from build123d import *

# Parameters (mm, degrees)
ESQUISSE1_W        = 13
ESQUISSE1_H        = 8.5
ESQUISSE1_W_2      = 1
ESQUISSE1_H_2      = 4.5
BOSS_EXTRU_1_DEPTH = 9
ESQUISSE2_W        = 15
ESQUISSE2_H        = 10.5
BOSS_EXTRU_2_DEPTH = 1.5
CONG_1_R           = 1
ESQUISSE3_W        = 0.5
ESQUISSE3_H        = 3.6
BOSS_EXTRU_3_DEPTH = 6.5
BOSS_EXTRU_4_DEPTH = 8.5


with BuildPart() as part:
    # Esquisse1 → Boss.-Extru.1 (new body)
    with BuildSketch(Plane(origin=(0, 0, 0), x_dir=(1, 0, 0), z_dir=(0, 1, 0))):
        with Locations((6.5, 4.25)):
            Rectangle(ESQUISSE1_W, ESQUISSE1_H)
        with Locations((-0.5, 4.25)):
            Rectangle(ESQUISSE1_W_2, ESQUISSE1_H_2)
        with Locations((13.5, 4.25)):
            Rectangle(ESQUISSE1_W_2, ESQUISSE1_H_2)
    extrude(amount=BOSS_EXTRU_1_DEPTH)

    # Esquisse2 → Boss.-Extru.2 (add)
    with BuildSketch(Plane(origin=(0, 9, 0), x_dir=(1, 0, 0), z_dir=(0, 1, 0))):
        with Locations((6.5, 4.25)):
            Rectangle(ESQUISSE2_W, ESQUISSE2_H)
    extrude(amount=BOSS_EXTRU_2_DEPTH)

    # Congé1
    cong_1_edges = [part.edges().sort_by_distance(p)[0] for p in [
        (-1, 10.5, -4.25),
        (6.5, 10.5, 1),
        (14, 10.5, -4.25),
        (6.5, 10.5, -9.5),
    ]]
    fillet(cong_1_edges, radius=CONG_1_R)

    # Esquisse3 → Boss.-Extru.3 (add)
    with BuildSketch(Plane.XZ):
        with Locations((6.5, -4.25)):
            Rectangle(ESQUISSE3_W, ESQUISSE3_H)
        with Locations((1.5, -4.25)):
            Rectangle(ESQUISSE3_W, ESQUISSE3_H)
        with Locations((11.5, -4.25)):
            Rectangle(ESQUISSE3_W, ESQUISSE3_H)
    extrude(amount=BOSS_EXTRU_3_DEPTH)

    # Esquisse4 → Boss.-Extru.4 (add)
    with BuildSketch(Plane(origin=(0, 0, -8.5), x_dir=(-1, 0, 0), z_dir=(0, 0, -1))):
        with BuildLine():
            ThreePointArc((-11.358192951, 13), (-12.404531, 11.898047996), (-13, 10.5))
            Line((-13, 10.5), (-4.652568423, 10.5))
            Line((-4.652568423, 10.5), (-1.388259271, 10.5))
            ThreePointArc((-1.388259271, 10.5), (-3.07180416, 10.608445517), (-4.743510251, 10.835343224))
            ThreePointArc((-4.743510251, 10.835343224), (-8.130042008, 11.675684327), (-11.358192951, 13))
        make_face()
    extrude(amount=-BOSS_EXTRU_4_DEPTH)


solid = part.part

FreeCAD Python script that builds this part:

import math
import FreeCAD as App
import Part
import Sketcher


def edges_at(feature, points):
    """Names of the edges that pass closest to the given points."""
    edges = feature.Shape.Edges
    near = lambda p: min(range(len(edges)), key=lambda i: edges[i].distToShape(Part.Vertex(*p))[0])
    return sorted({f"Edge{near(p) + 1}" for p in points})

doc = App.newDocument("Part")
body = doc.addObject("PartDesign::Body", "Body")

sketch1 = body.newObject("Sketcher::SketchObject", "Sketch")
sketch1.AttachmentSupport = (doc.getObject("XZ_Plane"), [""])
sketch1.MapMode = "FlatFace"
sketch1.addGeometry([
    Part.LineSegment(App.Vector(0, -2, 0), App.Vector(0, 0, 0)),
    Part.LineSegment(App.Vector(0, 0, 0), App.Vector(13, 0, 0)),
    Part.LineSegment(App.Vector(13, 0, 0), App.Vector(13, -2, 0)),
    Part.LineSegment(App.Vector(13, -2, 0), App.Vector(14, -2, 0)),
    Part.LineSegment(App.Vector(14, -2, 0), App.Vector(14, -6.5, 0)),
    Part.LineSegment(App.Vector(14, -6.5, 0), App.Vector(13, -6.5, 0)),
    Part.LineSegment(App.Vector(13, -6.5, 0), App.Vector(13, -8.5, 0)),
    Part.LineSegment(App.Vector(13, -8.5, 0), App.Vector(0, -8.5, 0)),
    Part.LineSegment(App.Vector(0, -8.5, 0), App.Vector(0, -6.5, 0)),
    Part.LineSegment(App.Vector(0, -6.5, 0), App.Vector(-1, -6.5, 0)),
    Part.LineSegment(App.Vector(-1, -6.5, 0), App.Vector(-1, -2, 0)),
    Part.LineSegment(App.Vector(-1, -2, 0), App.Vector(0, -2, 0)),
], False)
sketch1.addConstraint([
    Sketcher.Constraint("Coincident", 0, 2, 1, 1),
    Sketcher.Constraint("Coincident", 1, 2, 2, 1),
    Sketcher.Constraint("Coincident", 2, 2, 3, 1),
    Sketcher.Constraint("Coincident", 3, 2, 4, 1),
    Sketcher.Constraint("Coincident", 4, 2, 5, 1),
    Sketcher.Constraint("Coincident", 5, 2, 6, 1),
    Sketcher.Constraint("Coincident", 6, 2, 7, 1),
    Sketcher.Constraint("Coincident", 7, 2, 8, 1),
    Sketcher.Constraint("Coincident", 8, 2, 9, 1),
    Sketcher.Constraint("Coincident", 9, 2, 10, 1),
    Sketcher.Constraint("Coincident", 10, 2, 11, 1),
    Sketcher.Constraint("Coincident", 11, 2, 0, 1),
    Sketcher.Constraint("Vertical", 0),
    Sketcher.Constraint("Horizontal", 1),
    Sketcher.Constraint("Vertical", 2),
    Sketcher.Constraint("Horizontal", 3),
    Sketcher.Constraint("Vertical", 4),
    Sketcher.Constraint("Horizontal", 5),
    Sketcher.Constraint("Vertical", 6),
    Sketcher.Constraint("Horizontal", 7),
    Sketcher.Constraint("Vertical", 8),
    Sketcher.Constraint("Horizontal", 9),
    Sketcher.Constraint("Vertical", 10),
    Sketcher.Constraint("Horizontal", 11),
    Sketcher.Constraint("Coincident", 0, 2, -1, 1),
    Sketcher.Constraint("PointOnObject", 7, 2, -2),
    Sketcher.Constraint("Horizontal", 5, 2, 8, 2),
    Sketcher.Constraint("Horizontal", 3, 2, 10, 2),
    Sketcher.Constraint("Vertical", 2, 2, 5, 2),
    Sketcher.Constraint("Equal", 5, 9),
    Sketcher.Constraint("Equal", 2, 6),
    Sketcher.Constraint("DistanceX", 1, 1, 1, 2, 13.0),
    Sketcher.Constraint("DistanceX", 3, 1, 3, 2, 1.0),
    Sketcher.Constraint("DistanceY", 0, 1, 0, 2, 2.0),
    Sketcher.Constraint("DistanceY", 4, 2, 4, 1, 4.5),
])
pad1 = body.newObject("PartDesign::Pad", "Pad")
pad1.Profile = sketch1
pad1.Length = 9
pad1.Reversed = True

sketch2 = body.newObject("Sketcher::SketchObject", "Sketch001")
sketch2.AttachmentSupport = (doc.getObject("XZ_Plane"), [""])
sketch2.MapMode = "FlatFace"
sketch2.AttachmentOffset = App.Placement(App.Vector(0, 0, -9), App.Rotation())
sketch2.addGeometry([
    Part.LineSegment(App.Vector(-1, -10, 0), App.Vector(-1, 1, 0)),
    Part.LineSegment(App.Vector(-1, 1, 0), App.Vector(14, 1, 0)),
    Part.LineSegment(App.Vector(14, 1, 0), App.Vector(14, -10, 0)),
    Part.LineSegment(App.Vector(14, -10, 0), App.Vector(-1, -10, 0)),
], False)
sketch2.addConstraint([
    Sketcher.Constraint("Coincident", 0, 2, 1, 1),
    Sketcher.Constraint("Coincident", 1, 2, 2, 1),
    Sketcher.Constraint("Coincident", 2, 2, 3, 1),
    Sketcher.Constraint("Coincident", 3, 2, 0, 1),
    Sketcher.Constraint("Vertical", 0),
    Sketcher.Constraint("Horizontal", 1),
    Sketcher.Constraint("Vertical", 2),
    Sketcher.Constraint("Horizontal", 3),
    Sketcher.Constraint("DistanceX", 1, 1, 1, 2, 15.0),
    Sketcher.Constraint("DistanceY", 0, 1, 0, 2, 10.5),
    Sketcher.Constraint("DistanceX", 0, 2, -1, 1, 1.0),
    Sketcher.Constraint("DistanceY", -1, 1, 0, 2, 1.0),
])
pad2 = body.newObject("PartDesign::Pad", "Pad001")
pad2.Profile = sketch2
pad2.Length = 1.5
pad2.Reversed = True
doc.recompute()

fillet = body.newObject("PartDesign::Fillet", "Fillet")
fillet.Base = (pad2, edges_at(pad2, [
    (-1, 10.5, -4.25),
    (6.5, 10.5, 1),
    (14, 10.5, -4.25),
    (6.5, 10.5, -9.5),
]))
fillet.Radius = 1

sketch3 = body.newObject("Sketcher::SketchObject", "Sketch002")
sketch3.AttachmentSupport = (doc.getObject("XZ_Plane"), [""])
sketch3.MapMode = "FlatFace"
sketch3.addGeometry([
    Part.LineSegment(App.Vector(6.2, -2.5, 0), App.Vector(6.2, -6, 0)),
    Part.LineSegment(App.Vector(6.2, -6, 0), App.Vector(6.8, -6, 0)),
    Part.LineSegment(App.Vector(6.8, -6, 0), App.Vector(6.8, -2.5, 0)),
    Part.LineSegment(App.Vector(6.8, -2.5, 0), App.Vector(6.2, -2.5, 0)),
    Part.LineSegment(App.Vector(1.2, -2.5, 0), App.Vector(1.2, -6, 0)),
    Part.LineSegment(App.Vector(1.2, -6, 0), App.Vector(1.8, -6, 0)),
    Part.LineSegment(App.Vector(1.8, -6, 0), App.Vector(1.8, -2.5, 0)),
    Part.LineSegment(App.Vector(1.8, -2.5, 0), App.Vector(1.2, -2.5, 0)),
    Part.LineSegment(App.Vector(11.2, -2.5, 0), App.Vector(11.2, -6, 0)),
    Part.LineSegment(App.Vector(11.2, -6, 0), App.Vector(11.8, -6, 0)),
    Part.LineSegment(App.Vector(11.8, -6, 0), App.Vector(11.8, -2.5, 0)),
    Part.LineSegment(App.Vector(11.8, -2.5, 0), App.Vector(11.2, -2.5, 0)),
], False)
sketch3.addConstraint([
    Sketcher.Constraint("Coincident", 0, 2, 1, 1),
    Sketcher.Constraint("Coincident", 1, 2, 2, 1),
    Sketcher.Constraint("Coincident", 2, 2, 3, 1),
    Sketcher.Constraint("Coincident", 3, 2, 0, 1),
    Sketcher.Constraint("Coincident", 4, 2, 5, 1),
    Sketcher.Constraint("Coincident", 5, 2, 6, 1),
    Sketcher.Constraint("Coincident", 6, 2, 7, 1),
    Sketcher.Constraint("Coincident", 7, 2, 4, 1),
    Sketcher.Constraint("Coincident", 8, 2, 9, 1),
    Sketcher.Constraint("Coincident", 9, 2, 10, 1),
    Sketcher.Constraint("Coincident", 10, 2, 11, 1),
    Sketcher.Constraint("Coincident", 11, 2, 8, 1),
    Sketcher.Constraint("Vertical", 0),
    Sketcher.Constraint("Horizontal", 1),
    Sketcher.Constraint("Vertical", 2),
    Sketcher.Constraint("Horizontal", 3),
    Sketcher.Constraint("Vertical", 4),
    Sketcher.Constraint("Horizontal", 5),
    Sketcher.Constraint("Vertical", 6),
    Sketcher.Constraint("Horizontal", 7),
    Sketcher.Constraint("Vertical", 8),
    Sketcher.Constraint("Horizontal", 9),
    Sketcher.Constraint("Vertical", 10),
    Sketcher.Constraint("Horizontal", 11),
    Sketcher.Constraint("Horizontal", 1, 2, 4, 2),
    Sketcher.Constraint("Horizontal", 3, 2, 6, 2),
    Sketcher.Constraint("Horizontal", 5, 2, 8, 2),
    Sketcher.Constraint("Horizontal", 7, 2, 10, 2),
    Sketcher.Constraint("Equal", 3, 5),
    Sketcher.Constraint("Equal", 7, 9),
    Sketcher.Constraint("DistanceX", 1, 1, 1, 2, 0.5),
    Sketcher.Constraint("DistanceY", 0, 2, 0, 1, 3.6),
    Sketcher.Constraint("DistanceX", 4, 2, 0, 2, 5.0),
    Sketcher.Constraint("DistanceX", 0, 2, 8, 2, 5.0),
    Sketcher.Constraint("DistanceX", -1, 1, 0, 2, 6.25),
    Sketcher.Constraint("DistanceY", 0, 2, -1, 1, 6.05),
])
pad3 = body.newObject("PartDesign::Pad", "Pad002")
pad3.Profile = sketch3
pad3.Length = 6.5

sketch4 = body.newObject("Sketcher::SketchObject", "Sketch003")
sketch4.AttachmentSupport = (doc.getObject("XY_Plane"), [""])
sketch4.MapMode = "FlatFace"
sketch4.AttachmentOffset = App.Placement(App.Vector(0, 0, -8.5), App.Rotation())
sketch4.addGeometry([
    Part.ArcOfCircle(Part.Circle(App.Vector(8.8, 9.5, 0), App.Vector(0, 0, 1), 4.3), math.radians(13), math.radians(54)),
    Part.LineSegment(App.Vector(13, 10.5, 0), App.Vector(1.4, 10.5, 0)),
    Part.ArcOfCircle(Part.Circle(App.Vector(0.7, 34.4, 0), App.Vector(0, 0, 1), 23.9), math.radians(-88.34), math.radians(-80.25)),
    Part.ArcOfCircle(Part.Circle(App.Vector(0.7, 34.4, 0), App.Vector(0, 0, 1), 23.9), math.radians(-80.25), math.radians(-63.51)),
], False)
sketch4.addConstraint([
    Sketcher.Constraint("Coincident", 0, 1, 1, 1),
    Sketcher.Constraint("Coincident", 1, 2, 2, 1),
    Sketcher.Constraint("Tangent", 2, 2, 3, 1),
    Sketcher.Constraint("Coincident", 3, 2, 0, 2),
    Sketcher.Constraint("Horizontal", 1),
    Sketcher.Constraint("Equal", 2, 3),
    Sketcher.Constraint("DistanceX", -1, 1, 0, 1, 13.0),
    Sketcher.Constraint("DistanceY", -1, 1, 3, 2, 13.0),
    Sketcher.Constraint("DistanceY", -1, 1, 0, 1, 10.5),
    Sketcher.Constraint("Radius", 0, 4.280883),
    Sketcher.Constraint("Radius", 2, 23.908165),
    Sketcher.Constraint("DistanceX", 1, 2, 1, 1, 11.611741),
    Sketcher.Constraint("DistanceY", -1, 1, 0, 3, 9.548132),
    Sketcher.Constraint("DistanceX", -1, 1, 2, 2, 4.74351),
])
pad4 = body.newObject("PartDesign::Pad", "Pad003")
pad4.Profile = sketch4
pad4.Length = 8.5

doc.recompute()
